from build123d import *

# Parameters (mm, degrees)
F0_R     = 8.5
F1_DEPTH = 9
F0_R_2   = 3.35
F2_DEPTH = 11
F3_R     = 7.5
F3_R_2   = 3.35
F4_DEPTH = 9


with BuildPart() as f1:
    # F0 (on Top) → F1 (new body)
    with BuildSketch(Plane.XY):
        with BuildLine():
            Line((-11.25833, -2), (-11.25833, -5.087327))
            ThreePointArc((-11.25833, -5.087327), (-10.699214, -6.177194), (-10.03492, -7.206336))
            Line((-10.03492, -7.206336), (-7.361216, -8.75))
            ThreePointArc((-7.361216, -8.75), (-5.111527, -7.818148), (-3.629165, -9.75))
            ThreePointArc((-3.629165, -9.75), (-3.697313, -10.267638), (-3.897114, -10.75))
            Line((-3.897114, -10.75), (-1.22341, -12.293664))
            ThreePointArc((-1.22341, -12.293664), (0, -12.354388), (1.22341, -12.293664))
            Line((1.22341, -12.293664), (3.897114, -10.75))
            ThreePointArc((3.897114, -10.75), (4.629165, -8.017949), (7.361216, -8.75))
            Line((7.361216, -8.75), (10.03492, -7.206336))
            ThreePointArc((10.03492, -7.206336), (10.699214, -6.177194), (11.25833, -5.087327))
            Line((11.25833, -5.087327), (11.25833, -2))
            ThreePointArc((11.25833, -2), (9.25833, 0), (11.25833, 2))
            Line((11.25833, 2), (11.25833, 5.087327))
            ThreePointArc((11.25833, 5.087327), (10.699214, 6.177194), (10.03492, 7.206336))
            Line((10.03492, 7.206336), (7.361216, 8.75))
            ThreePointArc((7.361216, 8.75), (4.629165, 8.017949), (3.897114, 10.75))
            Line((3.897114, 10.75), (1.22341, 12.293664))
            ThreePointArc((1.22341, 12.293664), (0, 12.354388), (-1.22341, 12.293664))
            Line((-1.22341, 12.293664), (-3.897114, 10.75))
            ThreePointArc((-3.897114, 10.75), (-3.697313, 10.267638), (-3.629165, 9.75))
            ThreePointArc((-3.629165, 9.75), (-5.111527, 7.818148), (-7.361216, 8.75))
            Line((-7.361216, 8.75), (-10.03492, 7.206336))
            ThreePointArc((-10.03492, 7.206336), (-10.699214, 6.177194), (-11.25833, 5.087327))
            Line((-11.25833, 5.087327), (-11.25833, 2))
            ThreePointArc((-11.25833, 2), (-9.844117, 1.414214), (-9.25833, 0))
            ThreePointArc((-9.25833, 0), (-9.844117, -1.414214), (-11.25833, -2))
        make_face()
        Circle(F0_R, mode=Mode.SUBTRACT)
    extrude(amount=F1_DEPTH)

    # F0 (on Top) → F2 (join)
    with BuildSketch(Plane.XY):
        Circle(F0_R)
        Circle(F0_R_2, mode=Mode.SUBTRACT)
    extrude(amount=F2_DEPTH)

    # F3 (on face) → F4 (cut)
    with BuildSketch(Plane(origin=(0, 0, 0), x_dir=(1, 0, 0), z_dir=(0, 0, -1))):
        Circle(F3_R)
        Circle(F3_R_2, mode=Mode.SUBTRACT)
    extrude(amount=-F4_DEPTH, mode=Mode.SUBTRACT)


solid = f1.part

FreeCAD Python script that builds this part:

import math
import FreeCAD as App
import Part
import Sketcher

V = App.Vector
Q = App.Units.Quantity

doc = App.newDocument("Part")
body = doc.addObject("PartDesign::Body", "Body")

# Sketch on XY plane
sketch1 = body.newObject("Sketcher::SketchObject", "Sketch")
sketch1.AttachmentSupport = (doc.getObject("XY_Plane"), [""])
sketch1.MapMode = "FlatFace"
sketch1.addGeometry([
    Part.LineSegment(V(-11.25833, -2, 0), V(-11.25833, -5.087327, 0)),  # 0
    Part.ArcOfCircle(Part.Circle(V(-0.000083, -0.00005, 0), V(0, 0, 1), 12.354291), math.radians(-155.683161), math.radians(-144.316856)),  # 1
    Part.LineSegment(V(-10.03492, -7.206336, 0), V(-7.361216, -8.75, 0)),  # 2
    Part.ArcOfCircle(Part.Circle(V(-5.629165, -9.75, 0), V(0, 0, 1), 2), math.radians(-0.000009), math.radians(150.000011)),  # 3
    Part.ArcOfCircle(Part.Circle(V(-5.629159, -9.750002, 0), V(0, 0, 1), 1.999994), math.radians(-30.000038), math.radians(0.000059)),  # 4
    Part.LineSegment(V(-3.897114, -10.75, 0), V(-1.22341, -12.293664, 0)),  # 5
    Part.ArcOfCircle(Part.Circle(V(0, 0.000031, 0), V(0, 0, 1), 12.354419), math.radians(-95.683092), math.radians(-84.316908)),  # 6
    Part.LineSegment(V(1.22341, -12.293664, 0), V(3.897114, -10.75, 0)),  # 7
    Part.ArcOfCircle(Part.Circle(V(5.629165, -9.75, 0), V(0, 0, 1), 2), math.radians(29.999997), math.radians(209.999997)),  # 8
    Part.LineSegment(V(7.361216, -8.75, 0), V(10.03492, -7.206336, 0)),  # 9
    Part.ArcOfCircle(Part.Circle(V(0.000083, -0.00005, 0), V(0, 0, 1), 12.354291), math.radians(-35.683144), math.radians(-24.316839)),  # 10
    Part.LineSegment(V(11.25833, -5.087327, 0), V(11.25833, -2, 0)),  # 11
    Part.ArcOfCircle(Part.Circle(V(11.25833, 0, 0), V(0, 0, 1), 2), math.radians(90), math.radians(270)),  # 12
    Part.LineSegment(V(11.25833, 2, 0), V(11.25833, 5.087327, 0)),  # 13
    Part.ArcOfCircle(Part.Circle(V(0.000083, 0.00005, 0), V(0, 0, 1), 12.354291), math.radians(24.316839), math.radians(35.683144)),  # 14
    Part.LineSegment(V(10.03492, 7.206336, 0), V(7.361216, 8.75, 0)),  # 15
    Part.ArcOfCircle(Part.Circle(V(5.629165, 9.75, 0), V(0, 0, 1), 2), math.radians(150.000003), math.radians(330.000003)),  # 16
    Part.LineSegment(V(3.897114, 10.75, 0), V(1.22341, 12.293664, 0)),  # 17
    Part.ArcOfCircle(Part.Circle(V(0, -0.000031, 0), V(0, 0, 1), 12.354419), math.radians(84.316908), math.radians(95.683092)),  # 18
    Part.LineSegment(V(-1.22341, 12.293664, 0), V(-3.897114, 10.75, 0)),  # 19
    Part.ArcOfCircle(Part.Circle(V(-5.629159, 9.750002, 0), V(0, 0, 1), 1.999994), math.radians(-0.000059), math.radians(30.000038)),  # 20
    Part.ArcOfCircle(Part.Circle(V(-5.629165, 9.75, 0), V(0, 0, 1), 2), math.radians(-150.000011), math.radians(0.000009)),  # 21
    Part.LineSegment(V(-7.361216, 8.75, 0), V(-10.03492, 7.206336, 0)),  # 22
    Part.ArcOfCircle(Part.Circle(V(-0.000083, 0.00005, 0), V(0, 0, 1), 12.354291), math.radians(144.316856), math.radians(155.683161)),  # 23
    Part.LineSegment(V(-11.25833, 5.087327, 0), V(-11.25833, 2, 0)),  # 24
    Part.ArcOfCircle(Part.Circle(V(-11.25833, 0, 0), V(0, 0, 1), 2), math.radians(0.000006), math.radians(89.999994)),  # 25
    Part.ArcOfCircle(Part.Circle(V(-11.25833, 0, 0), V(0, 0, 1), 2), math.radians(-89.999994), math.radians(-0.000006)),  # 26
    Part.Circle(V(0, 0, 0), V(0, 0, 1), 8.5),  # 27
], False)
sketch1.addConstraint([
    Sketcher.Constraint("Coincident", 0, 2, 1, 1),
    Sketcher.Constraint("Coincident", 1, 2, 2, 1),
    Sketcher.Constraint("Coincident", 2, 2, 3, 2),
    Sketcher.Constraint("Tangent", 3, 1, 4, 2),
    Sketcher.Constraint("Coincident", 4, 1, 5, 1),
    Sketcher.Constraint("Coincident", 5, 2, 6, 1),
    Sketcher.Constraint("Coincident", 6, 2, 7, 1),
    Sketcher.Constraint("Coincident", 7, 2, 8, 2),
    Sketcher.Constraint("Coincident", 8, 1, 9, 1),
    Sketcher.Constraint("Coincident", 9, 2, 10, 1),
    Sketcher.Constraint("Coincident", 10, 2, 11, 1),
    Sketcher.Constraint("Coincident", 11, 2, 12, 2),
    Sketcher.Constraint("Coincident", 12, 1, 13, 1),
    Sketcher.Constraint("Coincident", 13, 2, 14, 1),
    Sketcher.Constraint("Coincident", 14, 2, 15, 1),
    Sketcher.Constraint("Coincident", 15, 2, 16, 2),
    Sketcher.Constraint("Coincident", 16, 1, 17, 1),
    Sketcher.Constraint("Coincident", 17, 2, 18, 1),
    Sketcher.Constraint("Coincident", 18, 2, 19, 1),
    Sketcher.Constraint("Coincident", 19, 2, 20, 2),
    Sketcher.Constraint("Tangent", 20, 1, 21, 2),
    Sketcher.Constraint("Coincident", 21, 1, 22, 1),
    Sketcher.Constraint("Coincident", 22, 2, 23, 1),
    Sketcher.Constraint("Coincident", 23, 2, 24, 1),
    Sketcher.Constraint("Coincident", 24, 2, 25, 2),
    Sketcher.Constraint("Tangent", 25, 1, 26, 2),
    Sketcher.Constraint("Coincident", 26, 1, 0, 1),
    Sketcher.Constraint("Vertical", 0),
    Sketcher.Constraint("Vertical", 11),
    Sketcher.Constraint("Vertical", 13),
    Sketcher.Constraint("Vertical", 24),
    Sketcher.Constraint("Coincident", 27, 3, -1, 1),
    Sketcher.Constraint("Equal", 3, 8),
    Sketcher.Constraint("Equal", 1, 10),
    Sketcher.Constraint("Equal", 8, 12),
    Sketcher.Constraint("Equal", 10, 14),
    Sketcher.Constraint("Equal", 12, 16),
    Sketcher.Constraint("Equal", 6, 18),
    Sketcher.Constraint("Equal", 4, 20),
    Sketcher.Constraint("Equal", 16, 21),
    Sketcher.Constraint("Equal", 14, 23),
    Sketcher.Constraint("Equal", 21, 25),
    Sketcher.Constraint("Equal", 25, 26),
    Sketcher.Constraint("Symmetric", 1, 3, 14, 3, -1, 1),
    Sketcher.Constraint("Symmetric", 3, 3, 16, 3, -1, 1),
    Sketcher.Constraint("Symmetric", 6, 3, 18, 3, -1, 1),
    Sketcher.Constraint("Symmetric", 8, 3, 20, 3, -1, 1),
    Sketcher.Constraint("Symmetric", 10, 3, 23, 3, -1, 1),
    Sketcher.Constraint("Symmetric", 12, 3, 25, 3, -1, 1),
    Sketcher.Constraint("Symmetric", 4, 1, 16, 1, -1, 1),
    Sketcher.Constraint("Symmetric", 3, 3, 8, 3, -2),
    Sketcher.Constraint("Symmetric", 1, 3, 10, 3, -2),
    Sketcher.Constraint("Symmetric", 5, 2, 6, 2, -2),
    Sketcher.Constraint("Symmetric", 12, 1, 24, 2, -2),
    Sketcher.Constraint("PointOnObject", 25, 1, -1),
    Sketcher.Constraint("Parallel", 2, 5),
    Sketcher.Constraint("Parallel", 7, 9),
    Sketcher.Constraint("Parallel", 5, 15),
    Sketcher.Constraint("Parallel", 15, 17),
    Sketcher.Constraint("Parallel", 9, 19),
    Sketcher.Constraint("Parallel", 19, 22),
    Sketcher.Constraint("Horizontal", 8, 3, 3, 1),
    Sketcher.Constraint("Horizontal", 4, 1, 7, 2),
    Sketcher.Constraint("Horizontal", 2, 2, 8, 1),
    Sketcher.Constraint("Horizontal", 0, 2, 10, 2),
    Sketcher.Constraint("Horizontal", 17, 2, 18, 2),
    Sketcher.Constraint("Horizontal", 21, 3, 20, 1),
    Sketcher.Constraint("Horizontal", 15, 2, 21, 1),
    Sketcher.Constraint("Vertical", 26, 3, 0, 2),
    Sketcher.Constraint("Vertical", 11, 2, 12, 1),
    Sketcher.Constraint("Vertical", 9, 2, 14, 2),
    Sketcher.Constraint("Equal", 2, 5),
    Sketcher.Constraint("Diameter", 27, 17.0),
    Sketcher.Constraint("Radius", 3, 2.0),
    Sketcher.Constraint("Angle", 2, Q("-30.000004 deg")),
    Sketcher.Constraint("DistanceY", 3, 3, 2, 2, 1.0),
    Sketcher.Constraint("DistanceY", 4, 1, 3, 1, 1.0),
    Sketcher.Constraint("DistanceY", 3, 3, -1, 1, 9.75),
    Sketcher.Constraint("Radius", 1, 12.354291),
    Sketcher.Constraint("Radius", 6, 12.354419),
    Sketcher.Constraint("DistanceY", 0, 2, 0, 1, 3.087327),
    Sketcher.Constraint("DistanceX", 4, 3, -1, 1, 5.629159),
    Sketcher.Constraint("DistanceX", -1, 1, 12, 3, 11.25833),
    Sketcher.Constraint("DistanceX", 1, 2, -1, 1, 10.03492),
])
pad1 = body.newObject("PartDesign::Pad", "Pad")
pad1.Profile = sketch1
pad1.Length = 9

# Sketch on XY plane
sketch2 = body.newObject("Sketcher::SketchObject", "Sketch001")
sketch2.AttachmentSupport = (doc.getObject("XY_Plane"), [""])
sketch2.MapMode = "FlatFace"
sketch2.addGeometry([
    Part.Circle(V(0, 0, 0), V(0, 0, 1), 8.5),
    Part.Circle(V(0, 0, 0), V(0, 0, 1), 3.35),
], False)
sketch2.addConstraint([
    Sketcher.Constraint("Coincident", 0, 3, -1, 1),
    Sketcher.Constraint("Coincident", 1, 3, -1, 1),
    Sketcher.Constraint("Diameter", 0, 17.0),
    Sketcher.Constraint("Diameter", 1, 6.7),
])
pad2 = body.newObject("PartDesign::Pad", "Pad001")
pad2.Profile = sketch2
pad2.Length = 11

# Sketch on XY plane
sketch3 = body.newObject("Sketcher::SketchObject", "Sketch002")
sketch3.AttachmentSupport = (doc.getObject("XY_Plane"), [""])
sketch3.MapMode = "FlatFace"
sketch3.addGeometry([
    Part.Circle(V(0, 0, 0), V(0, 0, 1), 7.5),
    Part.Circle(V(0, 0, 0), V(0, 0, 1), 3.35),
], False)
sketch3.addConstraint([
    Sketcher.Constraint("Coincident", 0, 3, -1, 1),
    Sketcher.Constraint("Coincident", 1, 3, -1, 1),
    Sketcher.Constraint("Diameter", 0, 15.0),
    Sketcher.Constraint("Diameter", 1, 6.7),
])
pocket1 = body.newObject("PartDesign::Pocket", "Pocket")
pocket1.Profile = sketch3
pocket1.Length = 9
pocket1.Reversed = True

doc.recompute()
